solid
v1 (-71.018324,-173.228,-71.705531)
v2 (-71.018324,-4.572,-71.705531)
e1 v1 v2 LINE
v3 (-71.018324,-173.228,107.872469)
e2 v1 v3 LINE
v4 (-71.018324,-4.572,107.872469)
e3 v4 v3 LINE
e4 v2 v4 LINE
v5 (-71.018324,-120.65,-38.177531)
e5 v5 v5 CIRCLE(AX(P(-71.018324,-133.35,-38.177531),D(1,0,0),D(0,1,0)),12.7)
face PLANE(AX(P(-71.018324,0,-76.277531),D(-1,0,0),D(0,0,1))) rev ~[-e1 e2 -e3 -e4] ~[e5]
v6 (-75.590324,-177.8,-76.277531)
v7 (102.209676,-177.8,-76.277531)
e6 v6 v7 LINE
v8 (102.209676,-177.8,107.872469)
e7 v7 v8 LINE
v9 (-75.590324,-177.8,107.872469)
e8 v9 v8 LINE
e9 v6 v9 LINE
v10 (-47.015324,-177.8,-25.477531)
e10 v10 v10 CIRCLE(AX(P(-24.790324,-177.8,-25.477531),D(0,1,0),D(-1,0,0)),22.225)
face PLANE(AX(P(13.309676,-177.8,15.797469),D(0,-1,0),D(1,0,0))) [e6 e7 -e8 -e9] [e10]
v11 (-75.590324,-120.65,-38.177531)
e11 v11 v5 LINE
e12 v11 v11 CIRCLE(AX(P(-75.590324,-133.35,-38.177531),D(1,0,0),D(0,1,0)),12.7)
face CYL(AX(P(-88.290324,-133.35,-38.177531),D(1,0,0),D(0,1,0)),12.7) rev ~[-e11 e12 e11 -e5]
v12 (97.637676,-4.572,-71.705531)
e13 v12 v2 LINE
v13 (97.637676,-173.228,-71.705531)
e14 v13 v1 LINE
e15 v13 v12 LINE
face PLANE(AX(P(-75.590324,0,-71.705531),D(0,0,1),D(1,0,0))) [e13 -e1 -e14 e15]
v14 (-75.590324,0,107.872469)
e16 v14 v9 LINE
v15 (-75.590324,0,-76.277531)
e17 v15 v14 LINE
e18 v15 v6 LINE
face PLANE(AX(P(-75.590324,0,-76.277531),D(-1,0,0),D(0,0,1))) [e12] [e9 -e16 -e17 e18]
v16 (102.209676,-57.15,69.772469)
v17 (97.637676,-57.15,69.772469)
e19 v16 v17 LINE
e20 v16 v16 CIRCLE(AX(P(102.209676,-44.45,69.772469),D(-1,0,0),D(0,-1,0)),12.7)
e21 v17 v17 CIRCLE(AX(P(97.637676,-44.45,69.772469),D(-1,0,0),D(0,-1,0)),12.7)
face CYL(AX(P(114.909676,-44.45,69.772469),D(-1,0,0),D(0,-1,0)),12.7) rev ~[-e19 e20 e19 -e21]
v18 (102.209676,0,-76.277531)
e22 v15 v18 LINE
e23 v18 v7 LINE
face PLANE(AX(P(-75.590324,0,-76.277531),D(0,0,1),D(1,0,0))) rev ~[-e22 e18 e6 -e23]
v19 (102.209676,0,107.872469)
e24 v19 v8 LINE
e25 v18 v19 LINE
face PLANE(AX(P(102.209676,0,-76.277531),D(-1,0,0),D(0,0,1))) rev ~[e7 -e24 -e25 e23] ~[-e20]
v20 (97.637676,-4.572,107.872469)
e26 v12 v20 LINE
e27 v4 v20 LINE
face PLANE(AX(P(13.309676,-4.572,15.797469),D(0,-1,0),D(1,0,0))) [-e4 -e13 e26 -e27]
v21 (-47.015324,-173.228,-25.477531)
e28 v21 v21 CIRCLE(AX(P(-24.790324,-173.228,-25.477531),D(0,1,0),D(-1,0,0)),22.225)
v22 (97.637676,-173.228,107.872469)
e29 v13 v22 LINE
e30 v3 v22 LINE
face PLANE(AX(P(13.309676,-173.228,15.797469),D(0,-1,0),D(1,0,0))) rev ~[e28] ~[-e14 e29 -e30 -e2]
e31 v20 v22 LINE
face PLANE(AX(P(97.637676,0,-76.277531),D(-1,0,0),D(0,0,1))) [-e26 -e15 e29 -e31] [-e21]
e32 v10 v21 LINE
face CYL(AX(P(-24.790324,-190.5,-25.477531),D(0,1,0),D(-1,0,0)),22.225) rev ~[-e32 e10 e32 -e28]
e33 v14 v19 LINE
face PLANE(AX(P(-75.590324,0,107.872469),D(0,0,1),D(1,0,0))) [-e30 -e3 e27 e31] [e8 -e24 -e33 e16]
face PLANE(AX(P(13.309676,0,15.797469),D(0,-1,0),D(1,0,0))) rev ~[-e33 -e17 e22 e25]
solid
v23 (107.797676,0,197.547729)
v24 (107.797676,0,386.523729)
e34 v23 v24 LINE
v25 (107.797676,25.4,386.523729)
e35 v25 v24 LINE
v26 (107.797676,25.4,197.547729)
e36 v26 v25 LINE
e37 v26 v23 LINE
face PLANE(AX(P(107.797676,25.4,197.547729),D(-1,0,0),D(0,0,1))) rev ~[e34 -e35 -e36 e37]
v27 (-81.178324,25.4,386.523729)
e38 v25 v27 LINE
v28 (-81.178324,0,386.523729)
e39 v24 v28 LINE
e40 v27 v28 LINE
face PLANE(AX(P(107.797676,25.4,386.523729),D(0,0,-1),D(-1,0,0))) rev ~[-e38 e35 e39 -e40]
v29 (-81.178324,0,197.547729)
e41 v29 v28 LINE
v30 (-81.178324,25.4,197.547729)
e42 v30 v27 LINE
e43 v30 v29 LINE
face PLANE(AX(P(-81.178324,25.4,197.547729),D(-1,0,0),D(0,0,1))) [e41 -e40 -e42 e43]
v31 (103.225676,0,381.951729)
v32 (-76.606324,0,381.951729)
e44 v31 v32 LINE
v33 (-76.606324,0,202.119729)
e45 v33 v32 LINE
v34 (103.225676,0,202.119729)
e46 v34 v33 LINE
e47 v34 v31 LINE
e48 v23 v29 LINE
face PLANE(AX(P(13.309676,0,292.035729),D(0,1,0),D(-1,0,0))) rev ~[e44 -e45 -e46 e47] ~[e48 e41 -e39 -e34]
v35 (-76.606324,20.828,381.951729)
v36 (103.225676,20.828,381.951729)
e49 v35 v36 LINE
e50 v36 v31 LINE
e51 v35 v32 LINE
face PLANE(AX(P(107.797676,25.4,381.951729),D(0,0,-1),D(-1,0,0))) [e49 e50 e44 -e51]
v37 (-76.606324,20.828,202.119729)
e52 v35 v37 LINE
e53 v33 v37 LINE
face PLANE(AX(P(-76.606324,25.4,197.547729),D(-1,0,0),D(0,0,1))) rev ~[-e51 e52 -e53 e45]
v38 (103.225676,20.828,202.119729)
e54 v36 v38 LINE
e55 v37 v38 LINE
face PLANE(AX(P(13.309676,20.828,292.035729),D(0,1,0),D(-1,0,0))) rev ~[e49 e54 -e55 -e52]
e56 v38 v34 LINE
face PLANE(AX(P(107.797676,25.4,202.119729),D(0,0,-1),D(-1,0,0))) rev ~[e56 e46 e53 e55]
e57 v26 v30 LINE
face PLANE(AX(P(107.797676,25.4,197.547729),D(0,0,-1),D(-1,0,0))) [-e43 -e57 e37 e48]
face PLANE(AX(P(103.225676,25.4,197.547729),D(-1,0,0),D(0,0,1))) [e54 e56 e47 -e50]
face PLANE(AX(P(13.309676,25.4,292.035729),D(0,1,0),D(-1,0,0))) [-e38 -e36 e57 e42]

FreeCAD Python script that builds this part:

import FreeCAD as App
import Part
import Sketcher

V = App.Vector
Q = App.Units.Quantity


def faces_at(feature, points):
    """Names of the faces that lie closest to the given points."""
    faces = feature.Shape.Faces
    near = lambda p: min(range(len(faces)), key=lambda i: faces[i].distToShape(Part.Vertex(*p))[0])
    return sorted({f"Face{near(p) + 1}" for p in points})


def add_polygon(sketch, points):
    """Adds a closed chain of lines whose ends are joined by coincident constraints."""
    first, n = sketch.GeometryCount, len(points)
    for a, b in zip(points, points[1:] + points[:1]):
        sketch.addGeometry(Part.LineSegment(App.Vector(*a, 0), App.Vector(*b, 0)), False)
    for i in range(n):
        sketch.addConstraint(Sketcher.Constraint("Coincident", first + i, 2, first + (i + 1) % n, 1))

doc = App.newDocument("Part")
params = doc.addObject("Spreadsheet::Sheet", "Params")
for row, (alias, value) in enumerate([
    ("sketch1_width", "7 in"),
    ("sketch1_height", "7.25 in"),
    ("pad1_length", "7 in"),
    ("thickness_wall", "0.18 in"),
    ("sketch2_diameter", "1.75 in"),
    ("hole_diameter", "1.75 in"),
    ("hole_depth", "0.5 in"),
    ("sketch3_diameter", "1 in"),
    ("hole2_diameter", "1 in"),
    ("hole2_depth", "0.5 in"),
    ("sketch4_diameter", "1 in"),
    ("hole3_diameter", "1 in"),
    ("hole3_depth", "0.5 in"),
    ("sketch5_width", "7.44 in"),
    ("pad2_length", "1 in"),
    ("thickness2_wall", "0.18 in"),
], start=1):
    params.set(f"A{row}", alias)
    params.set(f"B{row}", "=" + value)
    params.setAlias(f"B{row}", alias)

body = doc.addObject("PartDesign::Body", "Body")

sketch1 = doc.addObject("Sketcher::SketchObject", "Sketch")
body.addObject(sketch1)
sketch1.AttachmentSupport = (doc.XZ_Plane, [""])
sketch1.MapMode = "FlatFace"
add_polygon(sketch1, [(-75.590324, 107.872469), (-75.590324, -76.277531), (102.209676, -76.277531), (102.209676, 107.872469)])
sketch1.addConstraint(Sketcher.Constraint("Vertical", 0))
sketch1.addConstraint(Sketcher.Constraint("Horizontal", 1))
sketch1.addConstraint(Sketcher.Constraint("Vertical", 2))
sketch1.addConstraint(Sketcher.Constraint("Horizontal", 3))
sketch1.addConstraint(Sketcher.Constraint("DistanceX", 1, 1, 1, 2, Q("7 in")))
sketch1.addConstraint(Sketcher.Constraint("DistanceY", 0, 2, 0, 1, Q("7.25 in")))
sketch1.addConstraint(Sketcher.Constraint("DistanceY", 0, 2, -1, 1, 76.277531))
sketch1.addConstraint(Sketcher.Constraint("DistanceX", 0, 2, -1, 1, 75.590324))
sketch1.setExpression("Constraints[8]", "Params.sketch1_width")
sketch1.setExpression("Constraints[9]", "Params.sketch1_height")
pad1 = doc.addObject("PartDesign::Pad", "Pad")
body.addObject(pad1)
pad1.Profile = sketch1
pad1.setExpression("Length", "Params.pad1_length")
doc.recompute()

thickness = doc.addObject("PartDesign::Thickness", "Thickness")
body.addObject(thickness)
thickness.Base = (pad1, faces_at(pad1, [(13.31, -88.9, 107.872)]))
thickness.setExpression("Value", "Params.thickness_wall")
thickness.Reversed = True
thickness.Join = "Arc"

sketch2 = doc.addObject("Sketcher::SketchObject", "Sketch001")
body.addObject(sketch2)
sketch2.AttachmentSupport = (doc.XZ_Plane, [""])
sketch2.MapMode = "FlatFace"
sketch2.AttachmentOffset = App.Placement(V(0, 0, 7 * 25.4), App.Rotation())
sketch2.addGeometry(Part.Circle(V(-24.790324, -25.477531, 0), V(0, 0, 1), 22.225), False)
sketch2.addConstraint(Sketcher.Constraint("Diameter", 0, Q("1.75 in")))
sketch2.addConstraint(Sketcher.Constraint("DistanceY", 0, 3, -1, 1, 25.477531))
sketch2.addConstraint(Sketcher.Constraint("DistanceX", 0, 3, -1, 1, 24.790324))
sketch2.setExpression("Constraints[0]", "Params.sketch2_diameter")
doc.recompute()
hole = doc.addObject("PartDesign::Hole", "Hole")
body.addObject(hole)
hole.Profile = sketch2
hole.ThreadType = "None"
hole.setExpression("Diameter", "Params.hole_diameter")
hole.DepthType = "Dimension"
hole.setExpression("Depth", "Params.hole_depth")
hole.DrillPoint = "Angled"
hole.DrillPointAngle = 118

sketch3 = doc.addObject("Sketcher::SketchObject", "Sketch002")
body.addObject(sketch3)
sketch3.AttachmentSupport = (doc.YZ_Plane, [""])
sketch3.MapMode = "FlatFace"
sketch3.AttachmentOffset = App.Placement(V(0, 0, 102.209676), App.Rotation())
sketch3.addGeometry(Part.Circle(V(-44.45, 69.772469, 0), V(0, 0, 1), 12.7), False)
sketch3.addConstraint(Sketcher.Constraint("Diameter", 0, Q("1 in")))
sketch3.addConstraint(Sketcher.Constraint("DistanceX", 0, 3, -1, 1, Q("1.75 in")))
sketch3.addConstraint(Sketcher.Constraint("DistanceY", -1, 1, 0, 3, 69.772469))
sketch3.setExpression("Constraints[0]", "Params.sketch3_diameter")
doc.recompute()
hole2 = doc.addObject("PartDesign::Hole", "Hole001")
body.addObject(hole2)
hole2.Profile = sketch3
hole2.ThreadType = "None"
hole2.setExpression("Diameter", "Params.hole2_diameter")
hole2.DepthType = "Dimension"
hole2.setExpression("Depth", "Params.hole2_depth")
hole2.DrillPoint = "Angled"
hole2.DrillPointAngle = 118

sketch4 = doc.addObject("Sketcher::SketchObject", "Sketch003")
body.addObject(sketch4)
sketch4.AttachmentSupport = (doc.YZ_Plane, [""])
sketch4.MapMode = "FlatFace"
sketch4.AttachmentOffset = App.Placement(V(0, 0, -75.590324), App.Rotation())
sketch4.addGeometry(Part.Circle(V(-133.35, -38.177531, 0), V(0, 0, 1), 12.7), False)
sketch4.addConstraint(Sketcher.Constraint("Diameter", 0, Q("1 in")))
sketch4.addConstraint(Sketcher.Constraint("DistanceX", 0, 3, -1, 1, Q("5.25 in")))
sketch4.addConstraint(Sketcher.Constraint("DistanceY", 0, 3, -1, 1, 38.177531))
sketch4.setExpression("Constraints[0]", "Params.sketch4_diameter")
doc.recompute()
hole3 = doc.addObject("PartDesign::Hole", "Hole002")
body.addObject(hole3)
hole3.Profile = sketch4
hole3.ThreadType = "None"
hole3.setExpression("Diameter", "Params.hole3_diameter")
hole3.DepthType = "Dimension"
hole3.setExpression("Depth", "Params.hole3_depth")
hole3.DrillPoint = "Angled"
hole3.DrillPointAngle = 118
hole3.Reversed = True
body2 = doc.addObject("PartDesign::Body", "Body001")

sketch5 = doc.addObject("Sketcher::SketchObject", "Sketch004")
body2.addObject(sketch5)
sketch5.AttachmentSupport = (doc.getObject("XZ_Plane001"), [""])
sketch5.MapMode = "FlatFace"
sketch5.AttachmentOffset = App.Placement(V(0, 0, -1 * 25.4), App.Rotation())
add_polygon(sketch5, [(107.797676, 386.523729), (107.797676, 197.547729), (-81.178324, 197.547729), (-81.178324, 386.523729)])
sketch5.addConstraint(Sketcher.Constraint("Vertical", 0))
sketch5.addConstraint(Sketcher.Constraint("Horizontal", 1))
sketch5.addConstraint(Sketcher.Constraint("Vertical", 2))
sketch5.addConstraint(Sketcher.Constraint("Horizontal", 3))
sketch5.addConstraint(Sketcher.Constraint("Equal", 3, 0))
sketch5.addConstraint(Sketcher.Constraint("DistanceX", 1, 2, 1, 1, Q("7.44 in")))
sketch5.addConstraint(Sketcher.Constraint("DistanceY", -1, 1, 0, 2, 197.547729))
sketch5.addConstraint(Sketcher.Constraint("DistanceX", -1, 1, 0, 2, 107.797676))
sketch5.setExpression("Constraints[9]", "Params.sketch5_width")
pad2 = doc.addObject("PartDesign::Pad", "Pad001")
body2.addObject(pad2)
pad2.Profile = sketch5
pad2.setExpression("Length", "Params.pad2_length")
doc.recompute()

thickness2 = doc.addObject("PartDesign::Thickness", "Thickness001")
body2.addObject(thickness2)
thickness2.Base = (pad2, faces_at(pad2, [(13.31, 0, 292.036)]))
thickness2.setExpression("Value", "Params.thickness2_wall")
thickness2.Reversed = True
thickness2.Join = "Arc"

doc.recompute()
